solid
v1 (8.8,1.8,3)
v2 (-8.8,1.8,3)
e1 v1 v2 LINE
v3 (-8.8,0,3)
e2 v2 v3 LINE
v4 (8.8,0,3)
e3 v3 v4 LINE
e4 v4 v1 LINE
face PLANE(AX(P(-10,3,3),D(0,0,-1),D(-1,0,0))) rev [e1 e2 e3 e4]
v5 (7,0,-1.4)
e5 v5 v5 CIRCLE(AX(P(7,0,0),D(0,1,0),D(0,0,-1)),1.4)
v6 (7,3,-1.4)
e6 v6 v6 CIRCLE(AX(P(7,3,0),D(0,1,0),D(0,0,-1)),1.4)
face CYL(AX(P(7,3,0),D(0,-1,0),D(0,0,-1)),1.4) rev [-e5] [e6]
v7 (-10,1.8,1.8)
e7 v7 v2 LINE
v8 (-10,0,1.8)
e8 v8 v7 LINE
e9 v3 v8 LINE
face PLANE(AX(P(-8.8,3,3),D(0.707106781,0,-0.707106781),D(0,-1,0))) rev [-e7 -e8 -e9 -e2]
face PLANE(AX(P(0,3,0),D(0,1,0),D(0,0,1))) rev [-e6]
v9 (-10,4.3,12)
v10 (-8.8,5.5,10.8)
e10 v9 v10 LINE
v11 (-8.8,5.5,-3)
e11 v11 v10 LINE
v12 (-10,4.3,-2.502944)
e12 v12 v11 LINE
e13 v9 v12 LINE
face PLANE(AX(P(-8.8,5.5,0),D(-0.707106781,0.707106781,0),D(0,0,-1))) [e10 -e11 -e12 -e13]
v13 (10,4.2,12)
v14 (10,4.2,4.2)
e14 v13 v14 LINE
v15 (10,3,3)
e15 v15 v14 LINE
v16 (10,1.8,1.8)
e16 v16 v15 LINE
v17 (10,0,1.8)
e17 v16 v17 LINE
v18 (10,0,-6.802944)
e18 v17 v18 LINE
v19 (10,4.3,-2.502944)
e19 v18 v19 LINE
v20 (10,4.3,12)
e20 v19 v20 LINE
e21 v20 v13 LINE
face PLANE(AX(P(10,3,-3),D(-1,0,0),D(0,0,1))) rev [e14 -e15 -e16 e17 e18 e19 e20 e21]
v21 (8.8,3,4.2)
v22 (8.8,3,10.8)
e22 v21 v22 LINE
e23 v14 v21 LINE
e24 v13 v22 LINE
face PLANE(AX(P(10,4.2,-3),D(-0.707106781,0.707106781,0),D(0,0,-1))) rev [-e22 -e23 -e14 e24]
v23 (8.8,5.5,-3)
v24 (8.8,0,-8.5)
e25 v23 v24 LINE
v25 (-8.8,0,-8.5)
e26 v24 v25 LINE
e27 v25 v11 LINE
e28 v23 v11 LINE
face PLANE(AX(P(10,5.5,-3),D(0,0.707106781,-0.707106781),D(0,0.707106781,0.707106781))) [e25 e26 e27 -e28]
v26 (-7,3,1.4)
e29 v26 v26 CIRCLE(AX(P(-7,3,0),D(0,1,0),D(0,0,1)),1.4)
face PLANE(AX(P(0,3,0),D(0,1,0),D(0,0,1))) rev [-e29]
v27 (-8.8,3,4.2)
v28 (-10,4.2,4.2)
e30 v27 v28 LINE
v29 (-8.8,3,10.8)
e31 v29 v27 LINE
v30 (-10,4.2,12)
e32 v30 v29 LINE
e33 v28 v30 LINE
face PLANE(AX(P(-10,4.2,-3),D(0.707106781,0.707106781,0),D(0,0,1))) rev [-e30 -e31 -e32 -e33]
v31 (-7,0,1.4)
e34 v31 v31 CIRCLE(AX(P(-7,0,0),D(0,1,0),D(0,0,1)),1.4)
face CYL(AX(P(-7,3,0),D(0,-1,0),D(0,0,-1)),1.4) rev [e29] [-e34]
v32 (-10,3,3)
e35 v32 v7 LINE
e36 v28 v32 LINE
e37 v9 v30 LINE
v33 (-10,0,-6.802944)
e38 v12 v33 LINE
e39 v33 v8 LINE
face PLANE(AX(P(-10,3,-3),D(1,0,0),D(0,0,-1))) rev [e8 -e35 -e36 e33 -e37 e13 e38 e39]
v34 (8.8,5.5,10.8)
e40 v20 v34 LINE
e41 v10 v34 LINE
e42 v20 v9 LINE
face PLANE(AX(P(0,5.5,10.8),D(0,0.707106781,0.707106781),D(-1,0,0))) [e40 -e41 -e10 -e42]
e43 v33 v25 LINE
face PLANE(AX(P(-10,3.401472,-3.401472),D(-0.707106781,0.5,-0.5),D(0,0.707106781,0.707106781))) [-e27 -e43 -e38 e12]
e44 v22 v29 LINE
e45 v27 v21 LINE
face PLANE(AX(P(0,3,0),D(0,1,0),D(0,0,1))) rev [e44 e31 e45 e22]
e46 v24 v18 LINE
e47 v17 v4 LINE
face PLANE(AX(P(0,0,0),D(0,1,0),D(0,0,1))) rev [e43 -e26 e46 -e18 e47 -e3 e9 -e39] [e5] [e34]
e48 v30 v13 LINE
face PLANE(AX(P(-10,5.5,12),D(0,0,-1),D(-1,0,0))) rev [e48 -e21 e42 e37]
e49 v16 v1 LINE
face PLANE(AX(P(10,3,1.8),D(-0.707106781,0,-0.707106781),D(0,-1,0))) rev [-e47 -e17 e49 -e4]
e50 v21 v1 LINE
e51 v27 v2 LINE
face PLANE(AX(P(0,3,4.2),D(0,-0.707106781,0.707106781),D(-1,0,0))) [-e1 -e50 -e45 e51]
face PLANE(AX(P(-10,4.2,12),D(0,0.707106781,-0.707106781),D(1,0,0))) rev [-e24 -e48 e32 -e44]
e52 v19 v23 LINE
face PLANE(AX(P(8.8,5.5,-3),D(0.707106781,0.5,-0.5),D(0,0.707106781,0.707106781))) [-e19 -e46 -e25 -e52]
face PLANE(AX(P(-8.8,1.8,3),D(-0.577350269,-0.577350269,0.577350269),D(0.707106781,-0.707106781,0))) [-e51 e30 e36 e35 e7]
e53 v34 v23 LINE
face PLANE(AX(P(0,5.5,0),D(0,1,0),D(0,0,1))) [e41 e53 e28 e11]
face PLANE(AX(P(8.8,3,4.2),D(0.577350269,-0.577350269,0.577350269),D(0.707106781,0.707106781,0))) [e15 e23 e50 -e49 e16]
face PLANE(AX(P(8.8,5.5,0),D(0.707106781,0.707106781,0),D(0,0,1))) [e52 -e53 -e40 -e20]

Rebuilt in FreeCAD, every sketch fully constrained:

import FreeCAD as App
import Part
import Sketcher
from FreeCAD import Vector


def edges_at(feature, points):
    """Names of the edges that pass closest to the given points."""
    edges = feature.Shape.Edges
    near = lambda p: min(range(len(edges)), key=lambda i: edges[i].distToShape(Part.Vertex(*p))[0])
    return sorted({f"Edge{near(p) + 1}" for p in points})

doc = App.newDocument("Part")
body = doc.addObject("PartDesign::Body", "Body")

sketch1 = doc.addObject("Sketcher::SketchObject", "Sketch")
body.addObject(sketch1)
sketch1.AttachmentSupport = (doc.XZ_Plane, [""])
sketch1.MapMode = "FlatFace"
sketch1.addGeometry([
    Part.LineSegment(Vector(-10, -3, 0), Vector(-10, 3, 0)),
    Part.LineSegment(Vector(-10, 3, 0), Vector(10, 3, 0)),
    Part.LineSegment(Vector(10, 3, 0), Vector(10, -3, 0)),
    Part.LineSegment(Vector(10, -3, 0), Vector(-10, -3, 0)),
    Part.Circle(Vector(-7, 0, 0), Vector(0, 0, 1), 1.4),
    Part.Circle(Vector(7, 0, 0), Vector(0, 0, 1), 1.4),
], False)
sketch1.addConstraint([
    Sketcher.Constraint("Coincident", 0, 2, 1, 1),
    Sketcher.Constraint("Coincident", 1, 2, 2, 1),
    Sketcher.Constraint("Coincident", 2, 2, 3, 1),
    Sketcher.Constraint("Coincident", 3, 2, 0, 1),
    Sketcher.Constraint("Vertical", 0),
    Sketcher.Constraint("Horizontal", 1),
    Sketcher.Constraint("Vertical", 2),
    Sketcher.Constraint("Horizontal", 3),
    Sketcher.Constraint("Equal", 4, 5),
    Sketcher.Constraint("Symmetric", 4, 3, 5, 3, -1, 1),
    Sketcher.Constraint("Symmetric", 0, 2, 2, 2, -1, 1),
    Sketcher.Constraint("PointOnObject", 4, 3, -1),
    Sketcher.Constraint("Diameter", 4, 2.8),
    Sketcher.Constraint("DistanceX", 1, 1, 1, 2, 20.0),
    Sketcher.Constraint("DistanceY", 0, 1, 0, 2, 6.0),
    Sketcher.Constraint("DistanceX", 4, 3, -1, 1, 7.0),
])
pad1 = doc.addObject("PartDesign::Pad", "Pad")
body.addObject(pad1)
pad1.Profile = sketch1
pad1.Length = 3
pad1.Reversed = True

sketch2 = doc.addObject("Sketcher::SketchObject", "Sketch001")
body.addObject(sketch2)
sketch2.AttachmentSupport = (doc.XZ_Plane, [""])
sketch2.MapMode = "FlatFace"
sketch2.AttachmentOffset = App.Placement(Vector(0, 0, -3), App.Rotation())
sketch2.addGeometry([
    Part.LineSegment(Vector(-10, -3, 0), Vector(-10, 12, 0)),
    Part.LineSegment(Vector(-10, 12, 0), Vector(10, 12, 0)),
    Part.LineSegment(Vector(10, 12, 0), Vector(10, -3, 0)),
    Part.LineSegment(Vector(10, -3, 0), Vector(-10, -3, 0)),
], False)
sketch2.addConstraint([
    Sketcher.Constraint("Coincident", 0, 2, 1, 1),
    Sketcher.Constraint("Coincident", 1, 2, 2, 1),
    Sketcher.Constraint("Coincident", 2, 2, 3, 1),
    Sketcher.Constraint("Coincident", 3, 2, 0, 1),
    Sketcher.Constraint("Vertical", 0),
    Sketcher.Constraint("Horizontal", 1),
    Sketcher.Constraint("Vertical", 2),
    Sketcher.Constraint("Horizontal", 3),
    Sketcher.Constraint("DistanceX", 1, 1, 1, 2, 20.0),
    Sketcher.Constraint("DistanceY", 0, 1, 0, 2, 15.0),
    Sketcher.Constraint("DistanceX", 0, 2, -1, 1, 10.0),
    Sketcher.Constraint("DistanceY", -1, 1, 0, 2, 12.0),
])
pad2 = doc.addObject("PartDesign::Pad", "Pad001")
body.addObject(pad2)
pad2.Profile = sketch2
pad2.Length = 2.5
pad2.Reversed = True

sketch3 = doc.addObject("Sketcher::SketchObject", "Sketch002")
body.addObject(sketch3)
sketch3.AttachmentSupport = (doc.YZ_Plane, [""])
sketch3.MapMode = "FlatFace"
sketch3.AttachmentOffset = App.Placement(Vector(0, 0, -10), App.Rotation())
sketch3.addGeometry([
    Part.LineSegment(Vector(5.5, -3, 0), Vector(0, -8.5, 0)),
    Part.LineSegment(Vector(0, -8.5, 0), Vector(0, -3, 0)),
    Part.LineSegment(Vector(0, -3, 0), Vector(5.5, -3, 0)),
], False)
sketch3.addConstraint([
    Sketcher.Constraint("Coincident", 0, 2, 1, 1),
    Sketcher.Constraint("Coincident", 1, 2, 2, 1),
    Sketcher.Constraint("Coincident", 2, 2, 0, 1),
    Sketcher.Constraint("Vertical", 1),
    Sketcher.Constraint("Horizontal", 2),
    Sketcher.Constraint("PointOnObject", 0, 2, -2),
    Sketcher.Constraint("Equal", 2, 1),
    Sketcher.Constraint("DistanceX", 2, 1, 2, 2, 5.5),
    Sketcher.Constraint("DistanceY", 1, 2, -1, 1, 3.0),
])
pad3 = doc.addObject("PartDesign::Pad", "Pad002")
body.addObject(pad3)
pad3.Profile = sketch3
pad3.Length = 20
doc.recompute()

chamfer = doc.addObject("PartDesign::Chamfer", "Chamfer")
body.addObject(chamfer)
chamfer.Base = (pad3, edges_at(pad3, [
    (0, 3, 3),
    (-10, 3, 7.5),
    (0, 3, 12),
    (10, 3, 7.5),
    (-10, 5.5, 4.5),
    (0, 5.5, 12),
    (10, 5.5, 4.5),
    (10, 2.75, -5.75),
    (-10, 2.75, -5.75),
    (10, 1.5, 3),
    (-10, 1.5, 3),
]))
chamfer.Size = 1.2

doc.recompute()
